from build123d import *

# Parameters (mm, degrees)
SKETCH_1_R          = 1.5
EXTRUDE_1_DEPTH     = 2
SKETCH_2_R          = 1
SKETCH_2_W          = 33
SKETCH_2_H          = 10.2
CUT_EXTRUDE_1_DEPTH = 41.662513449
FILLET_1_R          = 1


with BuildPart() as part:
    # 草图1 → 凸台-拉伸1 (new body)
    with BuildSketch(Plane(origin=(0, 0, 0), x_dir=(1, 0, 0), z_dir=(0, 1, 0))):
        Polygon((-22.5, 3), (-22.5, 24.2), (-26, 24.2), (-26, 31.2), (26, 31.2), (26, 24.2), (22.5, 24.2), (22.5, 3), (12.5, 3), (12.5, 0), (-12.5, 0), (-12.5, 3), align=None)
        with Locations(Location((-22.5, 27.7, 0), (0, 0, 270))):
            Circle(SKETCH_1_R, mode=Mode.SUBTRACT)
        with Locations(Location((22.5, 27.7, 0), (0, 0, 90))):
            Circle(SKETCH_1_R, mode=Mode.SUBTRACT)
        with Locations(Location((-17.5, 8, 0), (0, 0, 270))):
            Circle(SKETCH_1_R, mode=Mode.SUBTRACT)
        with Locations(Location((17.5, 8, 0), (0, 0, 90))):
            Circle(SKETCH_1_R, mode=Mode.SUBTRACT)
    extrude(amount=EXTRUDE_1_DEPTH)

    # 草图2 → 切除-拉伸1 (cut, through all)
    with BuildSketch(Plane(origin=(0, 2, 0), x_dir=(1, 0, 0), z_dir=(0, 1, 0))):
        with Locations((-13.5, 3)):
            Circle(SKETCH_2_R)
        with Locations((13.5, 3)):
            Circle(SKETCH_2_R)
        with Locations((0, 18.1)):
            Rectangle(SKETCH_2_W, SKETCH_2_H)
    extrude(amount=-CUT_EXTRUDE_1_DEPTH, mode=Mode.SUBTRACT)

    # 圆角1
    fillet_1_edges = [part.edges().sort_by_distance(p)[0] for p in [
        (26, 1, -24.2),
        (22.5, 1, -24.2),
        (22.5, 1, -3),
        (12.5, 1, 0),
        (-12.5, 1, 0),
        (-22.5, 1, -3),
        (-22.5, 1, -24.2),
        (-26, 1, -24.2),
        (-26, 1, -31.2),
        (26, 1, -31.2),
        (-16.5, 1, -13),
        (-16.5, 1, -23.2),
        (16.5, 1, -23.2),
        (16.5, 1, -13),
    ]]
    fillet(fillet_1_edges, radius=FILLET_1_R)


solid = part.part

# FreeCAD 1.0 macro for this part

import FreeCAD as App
import Part
import Sketcher

V = App.Vector
Q = App.Units.Quantity


def edges_at(feature, points):
    """Names of the edges that pass closest to the given points."""
    edges = feature.Shape.Edges
    near = lambda p: min(range(len(edges)), key=lambda i: edges[i].distToShape(Part.Vertex(*p))[0])
    return sorted({f"Edge{near(p) + 1}" for p in points})


def add_polygon(sketch, points):
    """Adds a closed chain of lines whose ends are joined by coincident constraints."""
    first, n = sketch.GeometryCount, len(points)
    for a, b in zip(points, points[1:] + points[:1]):
        sketch.addGeometry(Part.LineSegment(App.Vector(*a, 0), App.Vector(*b, 0)), False)
    for i in range(n):
        sketch.addConstraint(Sketcher.Constraint("Coincident", first + i, 2, first + (i + 1) % n, 1))

doc = App.newDocument("Part")
body = doc.addObject("PartDesign::Body", "Body")

sketch1 = doc.addObject("Sketcher::SketchObject", "Sketch")
body.addObject(sketch1)
sketch1.AttachmentSupport = (doc.XZ_Plane, [""])
sketch1.MapMode = "FlatFace"
add_polygon(sketch1, [(-22.5, -24.2), (-22.5, -3), (-12.5, -3), (-12.5, 0), (12.5, 0), (12.5, -3), (22.5, -3), (22.5, -24.2), (26, -24.2), (26, -31.2), (-26, -31.2), (-26, -24.2)])
sketch1.addGeometry(Part.Circle(V(17.5, -8, 0), V(0, 0, 1), 1.5), False)
sketch1.addGeometry(Part.Circle(V(-17.5, -8, 0), V(0, 0, 1), 1.5), False)
sketch1.addGeometry(Part.Circle(V(22.5, -27.7, 0), V(0, 0, 1), 1.5), False)
sketch1.addGeometry(Part.Circle(V(-22.5, -27.7, 0), V(0, 0, 1), 1.5), False)
sketch1.addConstraint(Sketcher.Constraint("Vertical", 0))
sketch1.addConstraint(Sketcher.Constraint("Horizontal", 1))
sketch1.addConstraint(Sketcher.Constraint("Vertical", 2))
sketch1.addConstraint(Sketcher.Constraint("Horizontal", 3))
sketch1.addConstraint(Sketcher.Constraint("Vertical", 4))
sketch1.addConstraint(Sketcher.Constraint("Horizontal", 5))
sketch1.addConstraint(Sketcher.Constraint("Vertical", 6))
sketch1.addConstraint(Sketcher.Constraint("Horizontal", 7))
sketch1.addConstraint(Sketcher.Constraint("Vertical", 8))
sketch1.addConstraint(Sketcher.Constraint("Horizontal", 9))
sketch1.addConstraint(Sketcher.Constraint("Vertical", 10))
sketch1.addConstraint(Sketcher.Constraint("Horizontal", 11))
sketch1.addConstraint(Sketcher.Constraint("Equal", 12, 13))
sketch1.addConstraint(Sketcher.Constraint("Equal", 13, 14))
sketch1.addConstraint(Sketcher.Constraint("Equal", 14, 15))
sketch1.addConstraint(Sketcher.Constraint("Symmetric", 2, 2, 3, 2, -1, 1))
sketch1.addConstraint(Sketcher.Constraint("Symmetric", 12, 3, 13, 3, -2))
sketch1.addConstraint(Sketcher.Constraint("Symmetric", 14, 3, 15, 3, -2))
sketch1.addConstraint(Sketcher.Constraint("Symmetric", 0, 2, 5, 2, -2))
sketch1.addConstraint(Sketcher.Constraint("Symmetric", 7, 2, 10, 2, -2))
sketch1.addConstraint(Sketcher.Constraint("Vertical", 15, 3, 0, 2))
sketch1.addConstraint(Sketcher.Constraint("Diameter", 12, Q("3 mm")))
sketch1.addConstraint(Sketcher.Constraint("DistanceX", 1, 1, 1, 2, Q("10 mm")))
sketch1.addConstraint(Sketcher.Constraint("DistanceX", 3, 1, 3, 2, Q("25 mm")))
sketch1.addConstraint(Sketcher.Constraint("DistanceX", 9, 2, 9, 1, Q("52 mm")))
sketch1.addConstraint(Sketcher.Constraint("DistanceY", 2, 1, 2, 2, Q("3 mm")))
sketch1.addConstraint(Sketcher.Constraint("DistanceY", 8, 2, 8, 1, Q("7 mm")))
sketch1.addConstraint(Sketcher.Constraint("DistanceY", 0, 1, 0, 2, Q("21.2 mm")))
sketch1.addConstraint(Sketcher.Constraint("DistanceY", 12, 3, -1, 1, Q("8 mm")))
sketch1.addConstraint(Sketcher.Constraint("DistanceX", 13, 3, 12, 3, Q("35 mm")))
sketch1.addConstraint(Sketcher.Constraint("DistanceY", 14, 3, -1, 1, Q("27.7 mm")))
pad1 = doc.addObject("PartDesign::Pad", "Pad")
body.addObject(pad1)
pad1.Profile = sketch1
pad1.Length = 2
pad1.Reversed = True

sketch2 = doc.addObject("Sketcher::SketchObject", "Sketch001")
body.addObject(sketch2)
sketch2.AttachmentSupport = (doc.XZ_Plane, [""])
sketch2.MapMode = "FlatFace"
sketch2.AttachmentOffset = App.Placement(V(0, 0, -2), App.Rotation())
sketch2.addGeometry(Part.Circle(V(-13.5, -3, 0), V(0, 0, 1), 1), False)
sketch2.addGeometry(Part.Circle(V(13.5, -3, 0), V(0, 0, 1), 1), False)
add_polygon(sketch2, [(-16.5, -23.2), (-16.5, -13), (16.5, -13), (16.5, -23.2)])
sketch2.addConstraint(Sketcher.Constraint("Vertical", 2))
sketch2.addConstraint(Sketcher.Constraint("Horizontal", 3))
sketch2.addConstraint(Sketcher.Constraint("Vertical", 4))
sketch2.addConstraint(Sketcher.Constraint("Horizontal", 5))
sketch2.addConstraint(Sketcher.Constraint("Equal", 0, 1))
sketch2.addConstraint(Sketcher.Constraint("Symmetric", 0, 3, 1, 3, -2))
sketch2.addConstraint(Sketcher.Constraint("Diameter", 0, Q("2 mm")))
sketch2.addConstraint(Sketcher.Constraint("DistanceX", 3, 1, 3, 2, Q("33 mm")))
sketch2.addConstraint(Sketcher.Constraint("DistanceY", 2, 1, 2, 2, Q("10.2 mm")))
sketch2.addConstraint(Sketcher.Constraint("DistanceY", 0, 3, -1, 1, Q("3 mm")))
sketch2.addConstraint(Sketcher.Constraint("DistanceY", 2, 2, -1, 1, Q("13 mm")))
sketch2.addConstraint(Sketcher.Constraint("DistanceX", 0, 3, 1, 3, Q("27 mm")))
sketch2.addConstraint(Sketcher.Constraint("DistanceX", 2, 2, 0, 3, Q("3 mm")))
pocket1 = doc.addObject("PartDesign::Pocket", "Pocket")
body.addObject(pocket1)
pocket1.Profile = sketch2
pocket1.Type = "ThroughAll"
pocket1.Reversed = True
doc.recompute()

fillet = doc.addObject("PartDesign::Fillet", "Fillet")
body.addObject(fillet)
fillet.Base = (pocket1, edges_at(pocket1, [
    (26, 1, -24.2),
    (22.5, 1, -24.2),
    (22.5, 1, -3),
    (12.5, 1, 0),
    (-12.5, 1, 0),
    (-22.5, 1, -3),
    (-22.5, 1, -24.2),
    (-26, 1, -24.2),
    (-26, 1, -31.2),
    (26, 1, -31.2),
    (-16.5, 1, -13),
    (-16.5, 1, -23.2),
    (16.5, 1, -23.2),
    (16.5, 1, -13),
]))
fillet.Radius = 1

doc.recompute()
